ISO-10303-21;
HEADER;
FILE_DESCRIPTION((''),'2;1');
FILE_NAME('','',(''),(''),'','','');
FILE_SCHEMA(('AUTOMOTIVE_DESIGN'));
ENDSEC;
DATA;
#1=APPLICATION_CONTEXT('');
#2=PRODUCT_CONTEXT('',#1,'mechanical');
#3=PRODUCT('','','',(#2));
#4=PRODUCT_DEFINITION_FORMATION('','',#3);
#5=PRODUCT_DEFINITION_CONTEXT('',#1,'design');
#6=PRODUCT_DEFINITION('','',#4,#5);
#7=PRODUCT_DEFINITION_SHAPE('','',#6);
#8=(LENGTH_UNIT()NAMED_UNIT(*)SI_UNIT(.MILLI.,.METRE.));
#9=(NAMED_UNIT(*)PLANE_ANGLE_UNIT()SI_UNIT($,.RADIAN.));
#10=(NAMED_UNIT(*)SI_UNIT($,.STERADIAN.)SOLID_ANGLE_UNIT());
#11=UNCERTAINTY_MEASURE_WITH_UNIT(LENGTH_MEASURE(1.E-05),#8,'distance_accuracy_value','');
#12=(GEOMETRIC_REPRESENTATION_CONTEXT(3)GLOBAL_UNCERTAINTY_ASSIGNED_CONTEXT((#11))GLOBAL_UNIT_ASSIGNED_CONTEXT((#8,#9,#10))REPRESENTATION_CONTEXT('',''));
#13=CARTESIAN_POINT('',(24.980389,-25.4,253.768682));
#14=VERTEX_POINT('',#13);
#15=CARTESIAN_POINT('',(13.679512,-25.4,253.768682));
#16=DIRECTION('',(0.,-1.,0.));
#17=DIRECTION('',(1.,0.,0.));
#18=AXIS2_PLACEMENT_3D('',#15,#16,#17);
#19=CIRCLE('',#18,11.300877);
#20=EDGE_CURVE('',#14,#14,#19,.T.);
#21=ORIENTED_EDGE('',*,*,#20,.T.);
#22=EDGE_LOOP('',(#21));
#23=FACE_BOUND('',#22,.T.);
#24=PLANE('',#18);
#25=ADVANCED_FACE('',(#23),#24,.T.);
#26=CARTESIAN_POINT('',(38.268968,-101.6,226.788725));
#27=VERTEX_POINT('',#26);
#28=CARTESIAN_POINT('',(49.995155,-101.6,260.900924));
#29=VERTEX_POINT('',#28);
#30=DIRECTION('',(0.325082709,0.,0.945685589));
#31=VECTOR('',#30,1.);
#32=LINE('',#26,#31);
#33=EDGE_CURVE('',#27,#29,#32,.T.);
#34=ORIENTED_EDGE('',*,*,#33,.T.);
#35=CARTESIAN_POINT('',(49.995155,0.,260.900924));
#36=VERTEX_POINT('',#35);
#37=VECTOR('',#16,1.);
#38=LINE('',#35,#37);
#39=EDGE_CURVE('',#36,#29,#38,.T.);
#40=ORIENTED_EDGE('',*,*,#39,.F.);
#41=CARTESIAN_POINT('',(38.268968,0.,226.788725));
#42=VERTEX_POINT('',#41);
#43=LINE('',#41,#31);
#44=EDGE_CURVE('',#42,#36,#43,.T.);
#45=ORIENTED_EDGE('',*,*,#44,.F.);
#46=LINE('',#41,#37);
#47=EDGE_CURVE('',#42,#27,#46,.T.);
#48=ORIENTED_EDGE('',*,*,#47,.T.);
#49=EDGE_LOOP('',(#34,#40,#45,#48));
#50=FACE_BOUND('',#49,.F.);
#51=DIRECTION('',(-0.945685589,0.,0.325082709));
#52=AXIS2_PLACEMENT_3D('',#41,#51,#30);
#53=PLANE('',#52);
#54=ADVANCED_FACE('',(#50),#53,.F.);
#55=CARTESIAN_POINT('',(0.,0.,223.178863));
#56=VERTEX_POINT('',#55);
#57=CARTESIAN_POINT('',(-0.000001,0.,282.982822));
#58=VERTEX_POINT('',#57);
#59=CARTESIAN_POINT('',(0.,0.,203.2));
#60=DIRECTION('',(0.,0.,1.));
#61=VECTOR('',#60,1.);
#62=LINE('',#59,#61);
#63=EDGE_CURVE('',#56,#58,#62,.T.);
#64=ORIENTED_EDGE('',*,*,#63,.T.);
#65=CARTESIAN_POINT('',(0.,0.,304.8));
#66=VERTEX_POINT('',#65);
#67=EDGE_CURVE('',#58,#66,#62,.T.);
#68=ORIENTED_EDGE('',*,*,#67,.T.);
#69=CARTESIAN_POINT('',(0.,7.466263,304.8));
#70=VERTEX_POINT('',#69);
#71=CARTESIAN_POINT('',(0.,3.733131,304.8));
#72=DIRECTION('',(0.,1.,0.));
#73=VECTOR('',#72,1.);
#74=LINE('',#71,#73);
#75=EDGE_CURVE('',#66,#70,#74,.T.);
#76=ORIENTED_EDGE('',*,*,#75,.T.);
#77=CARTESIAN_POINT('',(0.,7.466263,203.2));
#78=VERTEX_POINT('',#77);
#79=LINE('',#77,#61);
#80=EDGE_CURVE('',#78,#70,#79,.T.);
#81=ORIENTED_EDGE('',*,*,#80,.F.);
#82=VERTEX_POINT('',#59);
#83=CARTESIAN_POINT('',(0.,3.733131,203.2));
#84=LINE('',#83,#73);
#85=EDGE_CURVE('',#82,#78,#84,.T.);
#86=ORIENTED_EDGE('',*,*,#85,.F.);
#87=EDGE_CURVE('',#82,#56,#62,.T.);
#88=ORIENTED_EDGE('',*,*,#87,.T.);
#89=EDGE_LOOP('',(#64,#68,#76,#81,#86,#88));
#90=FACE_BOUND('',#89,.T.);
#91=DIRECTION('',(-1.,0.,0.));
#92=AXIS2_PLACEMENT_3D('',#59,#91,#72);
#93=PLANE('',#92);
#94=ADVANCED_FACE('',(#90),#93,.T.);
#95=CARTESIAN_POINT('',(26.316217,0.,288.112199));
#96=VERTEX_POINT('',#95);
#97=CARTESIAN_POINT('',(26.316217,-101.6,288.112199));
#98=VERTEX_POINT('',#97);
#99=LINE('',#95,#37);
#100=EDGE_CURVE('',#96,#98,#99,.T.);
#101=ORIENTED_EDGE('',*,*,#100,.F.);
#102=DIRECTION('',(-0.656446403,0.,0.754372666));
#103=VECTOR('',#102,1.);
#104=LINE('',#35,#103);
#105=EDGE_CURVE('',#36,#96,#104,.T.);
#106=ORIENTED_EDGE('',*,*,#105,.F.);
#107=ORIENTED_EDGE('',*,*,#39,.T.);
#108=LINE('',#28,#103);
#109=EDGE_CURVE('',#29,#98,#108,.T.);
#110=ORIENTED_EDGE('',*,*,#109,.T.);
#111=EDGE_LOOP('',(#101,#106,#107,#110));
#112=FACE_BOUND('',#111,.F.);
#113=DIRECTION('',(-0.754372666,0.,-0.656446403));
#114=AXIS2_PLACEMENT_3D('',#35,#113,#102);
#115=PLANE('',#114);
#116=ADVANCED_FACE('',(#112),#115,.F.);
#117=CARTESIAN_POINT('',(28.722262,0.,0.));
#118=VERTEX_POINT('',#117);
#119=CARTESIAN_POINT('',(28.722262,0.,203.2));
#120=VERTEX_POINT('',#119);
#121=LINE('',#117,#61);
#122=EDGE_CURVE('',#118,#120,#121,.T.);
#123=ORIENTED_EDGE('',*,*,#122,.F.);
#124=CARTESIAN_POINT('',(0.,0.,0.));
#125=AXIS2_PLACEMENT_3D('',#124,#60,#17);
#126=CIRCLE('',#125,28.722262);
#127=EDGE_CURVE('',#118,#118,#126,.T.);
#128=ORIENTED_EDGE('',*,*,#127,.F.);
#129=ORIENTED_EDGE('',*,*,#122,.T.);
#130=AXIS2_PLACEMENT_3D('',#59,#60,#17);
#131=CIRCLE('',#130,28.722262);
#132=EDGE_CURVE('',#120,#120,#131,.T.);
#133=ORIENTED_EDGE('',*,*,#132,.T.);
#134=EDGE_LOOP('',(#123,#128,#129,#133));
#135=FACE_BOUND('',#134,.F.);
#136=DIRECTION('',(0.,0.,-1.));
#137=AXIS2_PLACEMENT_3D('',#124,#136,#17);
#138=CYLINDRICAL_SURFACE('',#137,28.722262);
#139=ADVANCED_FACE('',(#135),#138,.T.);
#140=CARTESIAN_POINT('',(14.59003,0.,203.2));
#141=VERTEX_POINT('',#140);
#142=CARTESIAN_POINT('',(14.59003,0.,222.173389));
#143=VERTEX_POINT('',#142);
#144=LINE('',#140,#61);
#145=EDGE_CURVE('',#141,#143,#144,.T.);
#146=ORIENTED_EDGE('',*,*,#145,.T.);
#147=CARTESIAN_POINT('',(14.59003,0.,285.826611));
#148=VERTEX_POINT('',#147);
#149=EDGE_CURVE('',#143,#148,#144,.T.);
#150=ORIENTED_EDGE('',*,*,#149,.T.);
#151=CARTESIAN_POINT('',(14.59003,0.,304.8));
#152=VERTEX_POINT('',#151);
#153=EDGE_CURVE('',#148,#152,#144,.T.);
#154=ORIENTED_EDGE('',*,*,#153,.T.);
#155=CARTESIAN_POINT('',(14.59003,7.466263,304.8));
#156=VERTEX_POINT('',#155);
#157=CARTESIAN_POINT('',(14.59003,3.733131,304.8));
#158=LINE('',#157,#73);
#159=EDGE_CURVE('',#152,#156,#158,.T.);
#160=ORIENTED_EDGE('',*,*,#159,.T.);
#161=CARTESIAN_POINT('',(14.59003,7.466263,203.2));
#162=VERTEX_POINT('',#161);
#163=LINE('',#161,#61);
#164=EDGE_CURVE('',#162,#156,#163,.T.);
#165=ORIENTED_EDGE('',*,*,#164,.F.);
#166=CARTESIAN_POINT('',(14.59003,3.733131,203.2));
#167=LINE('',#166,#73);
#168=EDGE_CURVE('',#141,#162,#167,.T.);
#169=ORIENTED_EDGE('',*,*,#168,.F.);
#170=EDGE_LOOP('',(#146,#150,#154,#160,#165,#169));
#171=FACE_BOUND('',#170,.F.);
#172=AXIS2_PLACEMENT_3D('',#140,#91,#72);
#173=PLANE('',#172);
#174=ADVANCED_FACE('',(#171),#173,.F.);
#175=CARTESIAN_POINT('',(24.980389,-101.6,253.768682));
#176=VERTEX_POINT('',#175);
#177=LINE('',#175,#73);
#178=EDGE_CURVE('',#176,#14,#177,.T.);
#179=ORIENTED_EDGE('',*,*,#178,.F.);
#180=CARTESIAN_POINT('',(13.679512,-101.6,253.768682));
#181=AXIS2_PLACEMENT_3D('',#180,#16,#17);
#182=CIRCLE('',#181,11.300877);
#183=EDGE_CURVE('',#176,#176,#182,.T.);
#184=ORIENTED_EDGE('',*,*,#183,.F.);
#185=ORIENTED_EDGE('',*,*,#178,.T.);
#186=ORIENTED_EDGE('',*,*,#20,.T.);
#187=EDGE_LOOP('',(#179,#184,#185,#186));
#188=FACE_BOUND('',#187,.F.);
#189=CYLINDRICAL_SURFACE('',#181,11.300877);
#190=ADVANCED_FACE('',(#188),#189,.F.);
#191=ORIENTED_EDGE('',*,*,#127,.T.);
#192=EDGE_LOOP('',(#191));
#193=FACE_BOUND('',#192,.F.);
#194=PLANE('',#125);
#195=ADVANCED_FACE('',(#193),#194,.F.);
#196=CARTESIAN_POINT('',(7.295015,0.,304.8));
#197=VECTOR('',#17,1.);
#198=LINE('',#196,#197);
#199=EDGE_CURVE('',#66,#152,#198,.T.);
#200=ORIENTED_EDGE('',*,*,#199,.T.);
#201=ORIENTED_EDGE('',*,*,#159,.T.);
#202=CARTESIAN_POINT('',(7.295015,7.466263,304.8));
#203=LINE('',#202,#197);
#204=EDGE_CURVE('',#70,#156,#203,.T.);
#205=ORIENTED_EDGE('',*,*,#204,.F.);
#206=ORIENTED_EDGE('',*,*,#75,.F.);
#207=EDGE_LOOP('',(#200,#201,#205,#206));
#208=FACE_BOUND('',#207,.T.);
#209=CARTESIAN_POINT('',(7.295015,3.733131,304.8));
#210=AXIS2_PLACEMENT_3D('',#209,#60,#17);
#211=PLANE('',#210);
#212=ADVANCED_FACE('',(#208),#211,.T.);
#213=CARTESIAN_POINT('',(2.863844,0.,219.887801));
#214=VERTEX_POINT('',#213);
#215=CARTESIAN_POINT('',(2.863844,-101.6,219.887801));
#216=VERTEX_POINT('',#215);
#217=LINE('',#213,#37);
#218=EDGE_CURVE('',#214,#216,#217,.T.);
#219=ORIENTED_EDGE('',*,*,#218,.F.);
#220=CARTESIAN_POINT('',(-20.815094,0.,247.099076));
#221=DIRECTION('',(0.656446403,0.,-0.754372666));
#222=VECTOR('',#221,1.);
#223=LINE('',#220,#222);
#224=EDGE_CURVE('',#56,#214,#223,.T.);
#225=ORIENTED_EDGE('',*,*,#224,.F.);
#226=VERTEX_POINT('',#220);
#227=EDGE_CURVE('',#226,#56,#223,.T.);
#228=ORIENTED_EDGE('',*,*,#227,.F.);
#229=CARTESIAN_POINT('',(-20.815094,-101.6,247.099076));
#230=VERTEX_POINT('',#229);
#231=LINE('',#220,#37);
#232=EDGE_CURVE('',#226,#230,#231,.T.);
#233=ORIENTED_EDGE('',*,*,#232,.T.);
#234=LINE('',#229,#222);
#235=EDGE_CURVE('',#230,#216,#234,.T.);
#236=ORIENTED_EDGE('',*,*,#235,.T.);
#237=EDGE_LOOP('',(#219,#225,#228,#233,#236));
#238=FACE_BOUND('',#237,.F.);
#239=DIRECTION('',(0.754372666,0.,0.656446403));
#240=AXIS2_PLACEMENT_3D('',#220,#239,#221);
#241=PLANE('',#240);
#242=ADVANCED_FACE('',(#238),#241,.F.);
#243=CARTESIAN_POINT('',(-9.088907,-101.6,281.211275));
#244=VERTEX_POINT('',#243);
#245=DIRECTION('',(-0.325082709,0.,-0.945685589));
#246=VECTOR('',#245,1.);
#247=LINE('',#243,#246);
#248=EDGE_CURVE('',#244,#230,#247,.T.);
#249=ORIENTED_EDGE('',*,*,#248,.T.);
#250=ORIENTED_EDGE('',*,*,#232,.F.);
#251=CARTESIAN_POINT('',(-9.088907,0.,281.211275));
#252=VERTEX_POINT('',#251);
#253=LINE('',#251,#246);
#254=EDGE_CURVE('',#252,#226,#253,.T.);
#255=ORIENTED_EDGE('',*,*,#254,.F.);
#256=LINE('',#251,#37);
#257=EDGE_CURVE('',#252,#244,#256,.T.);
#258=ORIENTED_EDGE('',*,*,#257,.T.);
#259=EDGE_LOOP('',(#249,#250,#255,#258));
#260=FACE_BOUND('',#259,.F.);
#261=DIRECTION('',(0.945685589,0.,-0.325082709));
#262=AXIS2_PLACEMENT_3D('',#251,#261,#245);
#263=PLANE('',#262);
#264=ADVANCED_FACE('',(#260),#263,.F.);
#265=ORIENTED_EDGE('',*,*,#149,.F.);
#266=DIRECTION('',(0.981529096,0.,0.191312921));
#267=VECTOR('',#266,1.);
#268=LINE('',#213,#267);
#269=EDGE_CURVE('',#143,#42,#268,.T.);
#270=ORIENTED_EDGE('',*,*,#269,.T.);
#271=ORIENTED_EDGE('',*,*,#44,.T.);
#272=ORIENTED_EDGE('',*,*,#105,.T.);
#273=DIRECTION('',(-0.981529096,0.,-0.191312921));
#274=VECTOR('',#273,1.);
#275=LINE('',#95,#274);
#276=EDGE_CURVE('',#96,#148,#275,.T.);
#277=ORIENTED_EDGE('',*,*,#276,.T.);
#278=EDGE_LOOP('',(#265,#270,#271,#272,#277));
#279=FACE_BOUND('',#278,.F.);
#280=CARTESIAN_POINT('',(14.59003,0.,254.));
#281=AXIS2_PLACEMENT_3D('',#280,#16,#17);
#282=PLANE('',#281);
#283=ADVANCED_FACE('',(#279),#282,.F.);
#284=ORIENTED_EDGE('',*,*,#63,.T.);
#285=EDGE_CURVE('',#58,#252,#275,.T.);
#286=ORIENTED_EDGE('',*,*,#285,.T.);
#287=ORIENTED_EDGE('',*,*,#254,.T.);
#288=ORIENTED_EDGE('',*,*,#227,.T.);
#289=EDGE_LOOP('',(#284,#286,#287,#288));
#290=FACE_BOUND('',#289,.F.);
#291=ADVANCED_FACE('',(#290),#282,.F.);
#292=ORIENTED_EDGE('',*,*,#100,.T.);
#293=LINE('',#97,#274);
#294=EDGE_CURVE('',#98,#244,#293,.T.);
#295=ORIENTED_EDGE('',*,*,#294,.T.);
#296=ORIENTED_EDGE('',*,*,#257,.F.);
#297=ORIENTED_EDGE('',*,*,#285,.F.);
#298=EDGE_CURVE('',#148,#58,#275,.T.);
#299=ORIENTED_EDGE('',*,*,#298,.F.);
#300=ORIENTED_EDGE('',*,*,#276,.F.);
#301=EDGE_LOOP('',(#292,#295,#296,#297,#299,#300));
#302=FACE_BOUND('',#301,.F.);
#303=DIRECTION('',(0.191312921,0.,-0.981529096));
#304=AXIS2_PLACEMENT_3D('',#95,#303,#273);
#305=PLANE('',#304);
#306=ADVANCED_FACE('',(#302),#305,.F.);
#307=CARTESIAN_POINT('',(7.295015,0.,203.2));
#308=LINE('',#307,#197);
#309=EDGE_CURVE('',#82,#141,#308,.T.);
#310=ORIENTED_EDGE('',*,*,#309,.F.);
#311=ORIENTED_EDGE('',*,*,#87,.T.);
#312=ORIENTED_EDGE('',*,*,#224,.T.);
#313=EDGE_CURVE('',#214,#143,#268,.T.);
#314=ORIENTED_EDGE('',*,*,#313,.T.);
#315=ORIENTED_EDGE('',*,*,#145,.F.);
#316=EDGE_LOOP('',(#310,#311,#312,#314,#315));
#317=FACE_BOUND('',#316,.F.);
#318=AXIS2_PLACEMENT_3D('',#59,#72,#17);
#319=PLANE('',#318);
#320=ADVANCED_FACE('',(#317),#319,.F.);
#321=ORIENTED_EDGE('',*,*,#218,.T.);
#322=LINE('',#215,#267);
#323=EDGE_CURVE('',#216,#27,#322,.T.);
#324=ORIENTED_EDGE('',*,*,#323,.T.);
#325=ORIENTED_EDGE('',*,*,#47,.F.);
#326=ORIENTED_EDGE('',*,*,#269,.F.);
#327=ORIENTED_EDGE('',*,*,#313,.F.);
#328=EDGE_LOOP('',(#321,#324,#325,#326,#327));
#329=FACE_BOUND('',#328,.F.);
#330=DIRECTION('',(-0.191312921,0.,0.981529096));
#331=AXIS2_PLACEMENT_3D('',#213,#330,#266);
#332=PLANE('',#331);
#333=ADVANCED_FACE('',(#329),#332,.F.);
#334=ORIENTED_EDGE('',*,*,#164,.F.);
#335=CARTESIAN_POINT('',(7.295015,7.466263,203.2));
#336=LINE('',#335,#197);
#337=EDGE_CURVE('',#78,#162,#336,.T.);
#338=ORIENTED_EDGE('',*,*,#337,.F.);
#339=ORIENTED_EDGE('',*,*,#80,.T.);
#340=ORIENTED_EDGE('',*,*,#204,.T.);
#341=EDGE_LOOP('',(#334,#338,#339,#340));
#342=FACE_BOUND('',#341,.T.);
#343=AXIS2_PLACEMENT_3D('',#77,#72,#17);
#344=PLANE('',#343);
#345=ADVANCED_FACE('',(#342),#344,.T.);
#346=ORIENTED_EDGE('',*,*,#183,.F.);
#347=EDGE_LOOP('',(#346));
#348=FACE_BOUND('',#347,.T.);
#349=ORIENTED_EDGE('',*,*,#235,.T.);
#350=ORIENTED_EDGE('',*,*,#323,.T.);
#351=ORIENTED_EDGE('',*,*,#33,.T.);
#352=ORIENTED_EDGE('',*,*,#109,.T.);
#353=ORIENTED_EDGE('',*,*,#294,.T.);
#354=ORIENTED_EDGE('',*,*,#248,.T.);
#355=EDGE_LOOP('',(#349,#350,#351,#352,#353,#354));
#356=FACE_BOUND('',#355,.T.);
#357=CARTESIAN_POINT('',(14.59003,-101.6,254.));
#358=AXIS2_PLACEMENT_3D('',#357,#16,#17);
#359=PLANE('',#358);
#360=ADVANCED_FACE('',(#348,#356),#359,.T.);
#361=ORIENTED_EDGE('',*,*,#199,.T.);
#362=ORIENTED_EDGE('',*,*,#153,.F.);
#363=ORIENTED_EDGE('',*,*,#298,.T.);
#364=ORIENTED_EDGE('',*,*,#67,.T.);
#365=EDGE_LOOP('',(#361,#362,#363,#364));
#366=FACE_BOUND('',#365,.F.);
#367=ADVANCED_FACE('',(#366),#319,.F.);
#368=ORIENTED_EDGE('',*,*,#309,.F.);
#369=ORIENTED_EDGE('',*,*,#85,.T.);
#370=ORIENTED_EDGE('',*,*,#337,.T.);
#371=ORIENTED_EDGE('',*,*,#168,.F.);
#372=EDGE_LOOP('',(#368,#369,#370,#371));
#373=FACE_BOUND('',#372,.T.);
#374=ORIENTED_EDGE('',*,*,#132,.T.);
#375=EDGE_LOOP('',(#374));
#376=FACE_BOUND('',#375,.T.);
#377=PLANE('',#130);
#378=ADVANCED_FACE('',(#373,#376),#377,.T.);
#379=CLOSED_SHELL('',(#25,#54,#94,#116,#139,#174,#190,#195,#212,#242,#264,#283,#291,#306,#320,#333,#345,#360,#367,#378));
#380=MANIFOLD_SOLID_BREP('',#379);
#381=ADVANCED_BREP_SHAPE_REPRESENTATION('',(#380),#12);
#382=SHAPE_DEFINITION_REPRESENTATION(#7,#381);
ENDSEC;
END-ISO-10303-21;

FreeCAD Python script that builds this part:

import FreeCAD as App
import Part
import Sketcher
Q = App.Units.Quantity


def add_polygon(sketch, points):
    """Adds a closed chain of lines whose ends are joined by coincident constraints."""
    first, n = sketch.GeometryCount, len(points)
    for a, b in zip(points, points[1:] + points[:1]):
        sketch.addGeometry(Part.LineSegment(App.Vector(*a, 0), App.Vector(*b, 0)), False)
    for i in range(n):
        sketch.addConstraint(Sketcher.Constraint("Coincident", first + i, 2, first + (i + 1) % n, 1))

doc = App.newDocument("Part")
body = doc.addObject("PartDesign::Body", "Body")

# Sketch on XY plane
sketch1 = body.newObject("Sketcher::SketchObject", "Sketch")
sketch1.AttachmentSupport = (doc.getObject("XY_Plane"), [""])
sketch1.MapMode = "FlatFace"
sketch1.addGeometry(Part.Circle(App.Vector(0, 0, 0), App.Vector(0, 0, 1), 29), False)
sketch1.addConstraint(Sketcher.Constraint("Coincident", 0, 3, -1, 1))
sketch1.addConstraint(Sketcher.Constraint("Diameter", 0, Q("57.444524 mm")))
pad1 = body.newObject("PartDesign::Pad", "Pad")
pad1.Profile = sketch1
pad1.Length = Q("8 in")

# Sketch on XY plane
sketch2 = body.newObject("Sketcher::SketchObject", "Sketch001")
sketch2.AttachmentSupport = (doc.getObject("XY_Plane"), [""])
sketch2.MapMode = "FlatFace"
sketch2.AttachmentOffset = App.Placement(App.Vector(0, 0, 8 * 25.4), App.Rotation())
add_polygon(sketch2, [(0, 7), (0, 0), (15, 0), (15, 7)])  # lines 0-3
sketch2.addConstraint(Sketcher.Constraint("Vertical", 0))
sketch2.addConstraint(Sketcher.Constraint("Horizontal", 1))
sketch2.addConstraint(Sketcher.Constraint("Vertical", 2))
sketch2.addConstraint(Sketcher.Constraint("Horizontal", 3))
sketch2.addConstraint(Sketcher.Constraint("Coincident", 0, 2, -1, 1))
sketch2.addConstraint(Sketcher.Constraint("DistanceX", 1, 1, 1, 2, Q("14.590031 mm")))
sketch2.addConstraint(Sketcher.Constraint("DistanceY", 0, 2, 0, 1, Q("7.466263 mm")))
pad2 = body.newObject("PartDesign::Pad", "Pad001")
pad2.Profile = sketch2
pad2.Length = Q("4 in")

# Sketch on XZ plane
sketch3 = body.newObject("Sketcher::SketchObject", "Sketch002")
sketch3.AttachmentSupport = (doc.getObject("XZ_Plane"), [""])
sketch3.MapMode = "FlatFace"
add_polygon(sketch3, [(38, 227), (50, 261), (26, 288), (-9, 281), (-21, 247), (3, 220)])  # lines 0-5
sketch3.addConstraint(Sketcher.Constraint("Parallel", 0, 3))
sketch3.addConstraint(Sketcher.Constraint("Parallel", 1, 4))
sketch3.addConstraint(Sketcher.Constraint("Parallel", 2, 5))
sketch3.addConstraint(Sketcher.Constraint("Equal", 0, 1))
sketch3.addConstraint(Sketcher.Constraint("Equal", 1, 2))
sketch3.addConstraint(Sketcher.Constraint("Equal", 2, 3))
sketch3.addConstraint(Sketcher.Constraint("DistanceY", -1, 1, 1, 2, Q("11.343 in")))
sketch3.addConstraint(Sketcher.Constraint("DistanceY", -1, 1, 4, 2, Q("8.657 in")))
sketch3.addConstraint(Sketcher.Constraint("DistanceY", 3, 2, 2, 2, Q("1.343 in")))
sketch3.addConstraint(Sketcher.Constraint("DistanceX", 2, 2, 0, 2, Q("59.084062 mm")))
sketch3.addConstraint(Sketcher.Constraint("DistanceY", 0, 2, 2, 2, Q("20.310351 mm")))
sketch3.addConstraint(Sketcher.Constraint("DistanceX", -1, 1, 0, 2, Q("49.995155 mm")))
pad3 = body.newObject("PartDesign::Pad", "Pad002")
pad3.Profile = sketch3
pad3.Length = Q("4 in")

# Sketch on XZ plane
sketch4 = body.newObject("Sketcher::SketchObject", "Sketch003")
sketch4.AttachmentSupport = (doc.getObject("XZ_Plane"), [""])
sketch4.MapMode = "FlatFace"
sketch4.AttachmentOffset = App.Placement(App.Vector(0, 0, 4 * 25.4), App.Rotation())
sketch4.addGeometry(Part.Circle(App.Vector(14, 254, 0), App.Vector(0, 0, 1), 11), False)
sketch4.addConstraint(Sketcher.Constraint("Diameter", 0, Q("22.601754 mm")))
sketch4.addConstraint(Sketcher.Constraint("DistanceX", -1, 1, 0, 3, Q("13.679512 mm")))
sketch4.addConstraint(Sketcher.Constraint("DistanceY", -1, 1, 0, 3, Q("253.768682 mm")))
pocket1 = body.newObject("PartDesign::Pocket", "Pocket")
pocket1.Profile = sketch4
pocket1.Length = Q("3 in")

doc.recompute()
